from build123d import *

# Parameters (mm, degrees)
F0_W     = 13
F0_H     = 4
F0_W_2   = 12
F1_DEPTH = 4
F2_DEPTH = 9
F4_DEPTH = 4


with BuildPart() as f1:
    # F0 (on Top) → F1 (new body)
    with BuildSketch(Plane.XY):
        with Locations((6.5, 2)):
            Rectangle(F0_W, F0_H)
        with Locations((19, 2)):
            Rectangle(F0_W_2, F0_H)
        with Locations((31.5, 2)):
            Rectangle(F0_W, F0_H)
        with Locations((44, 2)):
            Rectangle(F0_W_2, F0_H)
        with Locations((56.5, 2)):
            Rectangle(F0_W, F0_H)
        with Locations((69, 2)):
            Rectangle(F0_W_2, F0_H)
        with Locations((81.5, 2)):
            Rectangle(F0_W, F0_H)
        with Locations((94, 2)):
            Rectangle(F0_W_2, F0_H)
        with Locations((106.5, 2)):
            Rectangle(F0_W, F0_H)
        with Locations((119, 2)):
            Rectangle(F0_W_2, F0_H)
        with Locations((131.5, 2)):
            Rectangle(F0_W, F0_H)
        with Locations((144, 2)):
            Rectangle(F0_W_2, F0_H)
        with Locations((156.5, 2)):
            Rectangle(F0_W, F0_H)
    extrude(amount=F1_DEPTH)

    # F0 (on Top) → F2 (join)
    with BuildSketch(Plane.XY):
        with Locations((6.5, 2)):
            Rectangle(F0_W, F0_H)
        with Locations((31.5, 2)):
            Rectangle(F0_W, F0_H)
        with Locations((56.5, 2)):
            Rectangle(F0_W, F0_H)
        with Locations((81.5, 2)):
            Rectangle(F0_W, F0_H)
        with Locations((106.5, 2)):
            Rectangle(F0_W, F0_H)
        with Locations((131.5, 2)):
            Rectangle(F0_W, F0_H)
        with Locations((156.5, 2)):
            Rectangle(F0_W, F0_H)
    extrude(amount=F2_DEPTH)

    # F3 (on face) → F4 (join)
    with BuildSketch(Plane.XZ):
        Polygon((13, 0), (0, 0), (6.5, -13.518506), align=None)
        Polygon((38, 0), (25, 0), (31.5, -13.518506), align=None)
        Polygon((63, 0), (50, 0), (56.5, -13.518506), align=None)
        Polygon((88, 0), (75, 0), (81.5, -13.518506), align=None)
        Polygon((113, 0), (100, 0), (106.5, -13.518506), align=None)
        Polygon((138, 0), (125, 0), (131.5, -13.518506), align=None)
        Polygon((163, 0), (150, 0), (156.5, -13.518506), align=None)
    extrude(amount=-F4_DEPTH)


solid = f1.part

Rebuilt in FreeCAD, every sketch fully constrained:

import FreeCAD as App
import Part
import Sketcher

V = App.Vector
Q = App.Units.Quantity

doc = App.newDocument("Part")
body = doc.addObject("PartDesign::Body", "Body")

# Sketch on XY plane
sketch1 = body.newObject("Sketcher::SketchObject", "Sketch")
sketch1.AttachmentSupport = (doc.getObject("XY_Plane"), [""])
sketch1.MapMode = "FlatFace"
sketch1.addGeometry([
    Part.LineSegment(V(0, 4, 0), V(0, 0, 0)),
    Part.LineSegment(V(0, 0, 0), V(163, 0, 0)),
    Part.LineSegment(V(163, 0, 0), V(163, 4, 0)),
    Part.LineSegment(V(163, 4, 0), V(0, 4, 0)),
], False)
sketch1.addConstraint([
    Sketcher.Constraint("Coincident", 0, 2, 1, 1),
    Sketcher.Constraint("Coincident", 1, 2, 2, 1),
    Sketcher.Constraint("Coincident", 2, 2, 3, 1),
    Sketcher.Constraint("Coincident", 3, 2, 0, 1),
    Sketcher.Constraint("Vertical", 0),
    Sketcher.Constraint("Horizontal", 1),
    Sketcher.Constraint("Vertical", 2),
    Sketcher.Constraint("Horizontal", 3),
    Sketcher.Constraint("Coincident", 0, 2, -1, 1),
    Sketcher.Constraint("DistanceX", 1, 1, 1, 2, Q("163 mm")),
    Sketcher.Constraint("DistanceY", 0, 2, 0, 1, Q("4 mm")),
])
pad1 = body.newObject("PartDesign::Pad", "Pad")
pad1.Profile = sketch1
pad1.Length = 4

# Sketch on XY plane
sketch2 = body.newObject("Sketcher::SketchObject", "Sketch001")
sketch2.AttachmentSupport = (doc.getObject("XY_Plane"), [""])
sketch2.MapMode = "FlatFace"
sketch2.addGeometry([
    Part.LineSegment(V(0, 4, 0), V(0, 0, 0)),  # 0
    Part.LineSegment(V(0, 0, 0), V(13, 0, 0)),  # 1
    Part.LineSegment(V(13, 0, 0), V(13, 4, 0)),  # 2
    Part.LineSegment(V(13, 4, 0), V(0, 4, 0)),  # 3
    Part.LineSegment(V(25, 4, 0), V(25, 0, 0)),  # 4
    Part.LineSegment(V(25, 0, 0), V(38, 0, 0)),  # 5
    Part.LineSegment(V(38, 0, 0), V(38, 4, 0)),  # 6
    Part.LineSegment(V(38, 4, 0), V(25, 4, 0)),  # 7
    Part.LineSegment(V(50, 4, 0), V(50, 0, 0)),  # 8
    Part.LineSegment(V(50, 0, 0), V(63, 0, 0)),  # 9
    Part.LineSegment(V(63, 0, 0), V(63, 4, 0)),  # 10
    Part.LineSegment(V(63, 4, 0), V(50, 4, 0)),  # 11
    Part.LineSegment(V(75, 4, 0), V(75, 0, 0)),  # 12
    Part.LineSegment(V(75, 0, 0), V(88, 0, 0)),  # 13
    Part.LineSegment(V(88, 0, 0), V(88, 4, 0)),  # 14
    Part.LineSegment(V(88, 4, 0), V(75, 4, 0)),  # 15
    Part.LineSegment(V(100, 4, 0), V(100, 0, 0)),  # 16
    Part.LineSegment(V(100, 0, 0), V(113, 0, 0)),  # 17
    Part.LineSegment(V(113, 0, 0), V(113, 4, 0)),  # 18
    Part.LineSegment(V(113, 4, 0), V(100, 4, 0)),  # 19
    Part.LineSegment(V(125, 4, 0), V(125, 0, 0)),  # 20
    Part.LineSegment(V(125, 0, 0), V(138, 0, 0)),  # 21
    Part.LineSegment(V(138, 0, 0), V(138, 4, 0)),  # 22
    Part.LineSegment(V(138, 4, 0), V(125, 4, 0)),  # 23
    Part.LineSegment(V(150, 4, 0), V(150, 0, 0)),  # 24
    Part.LineSegment(V(150, 0, 0), V(163, 0, 0)),  # 25
    Part.LineSegment(V(163, 0, 0), V(163, 4, 0)),  # 26
    Part.LineSegment(V(163, 4, 0), V(150, 4, 0)),  # 27
], False)
sketch2.addConstraint([
    Sketcher.Constraint("Coincident", 0, 2, 1, 1),
    Sketcher.Constraint("Coincident", 1, 2, 2, 1),
    Sketcher.Constraint("Coincident", 2, 2, 3, 1),
    Sketcher.Constraint("Coincident", 3, 2, 0, 1),
    Sketcher.Constraint("Coincident", 4, 2, 5, 1),
    Sketcher.Constraint("Coincident", 5, 2, 6, 1),
    Sketcher.Constraint("Coincident", 6, 2, 7, 1),
    Sketcher.Constraint("Coincident", 7, 2, 4, 1),
    Sketcher.Constraint("Coincident", 8, 2, 9, 1),
    Sketcher.Constraint("Coincident", 9, 2, 10, 1),
    Sketcher.Constraint("Coincident", 10, 2, 11, 1),
    Sketcher.Constraint("Coincident", 11, 2, 8, 1),
    Sketcher.Constraint("Coincident", 12, 2, 13, 1),
    Sketcher.Constraint("Coincident", 13, 2, 14, 1),
    Sketcher.Constraint("Coincident", 14, 2, 15, 1),
    Sketcher.Constraint("Coincident", 15, 2, 12, 1),
    Sketcher.Constraint("Coincident", 16, 2, 17, 1),
    Sketcher.Constraint("Coincident", 17, 2, 18, 1),
    Sketcher.Constraint("Coincident", 18, 2, 19, 1),
    Sketcher.Constraint("Coincident", 19, 2, 16, 1),
    Sketcher.Constraint("Coincident", 20, 2, 21, 1),
    Sketcher.Constraint("Coincident", 21, 2, 22, 1),
    Sketcher.Constraint("Coincident", 22, 2, 23, 1),
    Sketcher.Constraint("Coincident", 23, 2, 20, 1),
    Sketcher.Constraint("Coincident", 24, 2, 25, 1),
    Sketcher.Constraint("Coincident", 25, 2, 26, 1),
    Sketcher.Constraint("Coincident", 26, 2, 27, 1),
    Sketcher.Constraint("Coincident", 27, 2, 24, 1),
    Sketcher.Constraint("Vertical", 0),
    Sketcher.Constraint("Horizontal", 1),
    Sketcher.Constraint("Vertical", 2),
    Sketcher.Constraint("Horizontal", 3),
    Sketcher.Constraint("Vertical", 4),
    Sketcher.Constraint("Horizontal", 5),
    Sketcher.Constraint("Vertical", 6),
    Sketcher.Constraint("Horizontal", 7),
    Sketcher.Constraint("Vertical", 8),
    Sketcher.Constraint("Horizontal", 9),
    Sketcher.Constraint("Vertical", 10),
    Sketcher.Constraint("Horizontal", 11),
    Sketcher.Constraint("Vertical", 12),
    Sketcher.Constraint("Horizontal", 13),
    Sketcher.Constraint("Vertical", 14),
    Sketcher.Constraint("Horizontal", 15),
    Sketcher.Constraint("Vertical", 16),
    Sketcher.Constraint("Horizontal", 17),
    Sketcher.Constraint("Vertical", 18),
    Sketcher.Constraint("Horizontal", 19),
    Sketcher.Constraint("Vertical", 20),
    Sketcher.Constraint("Horizontal", 21),
    Sketcher.Constraint("Vertical", 22),
    Sketcher.Constraint("Horizontal", 23),
    Sketcher.Constraint("Vertical", 24),
    Sketcher.Constraint("Horizontal", 25),
    Sketcher.Constraint("Vertical", 26),
    Sketcher.Constraint("Horizontal", 27),
    Sketcher.Constraint("Coincident", 0, 2, -1, 1),
    Sketcher.Constraint("PointOnObject", 4, 2, -1),
    Sketcher.Constraint("PointOnObject", 8, 2, -1),
    Sketcher.Constraint("PointOnObject", 12, 2, -1),
    Sketcher.Constraint("PointOnObject", 16, 2, -1),
    Sketcher.Constraint("PointOnObject", 20, 2, -1),
    Sketcher.Constraint("PointOnObject", 24, 2, -1),
    Sketcher.Constraint("Horizontal", 3, 2, 6, 2),
    Sketcher.Constraint("Horizontal", 7, 2, 10, 2),
    Sketcher.Constraint("Horizontal", 11, 2, 14, 2),
    Sketcher.Constraint("Horizontal", 15, 2, 18, 2),
    Sketcher.Constraint("Horizontal", 19, 2, 22, 2),
    Sketcher.Constraint("Horizontal", 23, 2, 26, 2),
    Sketcher.Constraint("Equal", 3, 5),
    Sketcher.Constraint("Equal", 7, 9),
    Sketcher.Constraint("Equal", 11, 13),
    Sketcher.Constraint("Equal", 15, 17),
    Sketcher.Constraint("Equal", 19, 21),
    Sketcher.Constraint("Equal", 23, 25),
    Sketcher.Constraint("DistanceX", 1, 1, 1, 2, Q("13 mm")),
    Sketcher.Constraint("DistanceY", 0, 2, 0, 1, Q("4 mm")),
    Sketcher.Constraint("DistanceX", -1, 1, 4, 2, Q("25 mm")),
    Sketcher.Constraint("DistanceX", -1, 1, 8, 2, Q("50 mm")),
    Sketcher.Constraint("DistanceX", -1, 1, 12, 2, Q("75 mm")),
    Sketcher.Constraint("DistanceX", -1, 1, 16, 2, Q("100 mm")),
    Sketcher.Constraint("DistanceX", -1, 1, 20, 2, Q("125 mm")),
    Sketcher.Constraint("DistanceX", -1, 1, 24, 2, Q("150 mm")),
])
pad2 = body.newObject("PartDesign::Pad", "Pad001")
pad2.Profile = sketch2
pad2.Length = 9

# Sketch on XZ plane
sketch3 = body.newObject("Sketcher::SketchObject", "Sketch002")
sketch3.AttachmentSupport = (doc.getObject("XZ_Plane"), [""])
sketch3.MapMode = "FlatFace"
sketch3.addGeometry([
    Part.LineSegment(V(13, 0, 0), V(0, 0, 0)),  # 0
    Part.LineSegment(V(0, 0, 0), V(6, -14, 0)),  # 1
    Part.LineSegment(V(6, -14, 0), V(13, 0, 0)),  # 2
    Part.LineSegment(V(38, 0, 0), V(25, 0, 0)),  # 3
    Part.LineSegment(V(25, 0, 0), V(32, -14, 0)),  # 4
    Part.LineSegment(V(32, -14, 0), V(38, 0, 0)),  # 5
    Part.LineSegment(V(63, 0, 0), V(50, 0, 0)),  # 6
    Part.LineSegment(V(50, 0, 0), V(56, -14, 0)),  # 7
    Part.LineSegment(V(56, -14, 0), V(63, 0, 0)),  # 8
    Part.LineSegment(V(88, 0, 0), V(75, 0, 0)),  # 9
    Part.LineSegment(V(75, 0, 0), V(82, -14, 0)),  # 10
    Part.LineSegment(V(82, -14, 0), V(88, 0, 0)),  # 11
    Part.LineSegment(V(113, 0, 0), V(100, 0, 0)),  # 12
    Part.LineSegment(V(100, 0, 0), V(106, -14, 0)),  # 13
    Part.LineSegment(V(106, -14, 0), V(113, 0, 0)),  # 14
    Part.LineSegment(V(138, 0, 0), V(125, 0, 0)),  # 15
    Part.LineSegment(V(125, 0, 0), V(132, -14, 0)),  # 16
    Part.LineSegment(V(132, -14, 0), V(138, 0, 0)),  # 17
    Part.LineSegment(V(163, 0, 0), V(150, 0, 0)),  # 18
    Part.LineSegment(V(150, 0, 0), V(156, -14, 0)),  # 19
    Part.LineSegment(V(156, -14, 0), V(163, 0, 0)),  # 20
], False)
sketch3.addConstraint([
    Sketcher.Constraint("Coincident", 0, 2, 1, 1),
    Sketcher.Constraint("Coincident", 1, 2, 2, 1),
    Sketcher.Constraint("Coincident", 2, 2, 0, 1),
    Sketcher.Constraint("Coincident", 3, 2, 4, 1),
    Sketcher.Constraint("Coincident", 4, 2, 5, 1),
    Sketcher.Constraint("Coincident", 5, 2, 3, 1),
    Sketcher.Constraint("Coincident", 6, 2, 7, 1),
    Sketcher.Constraint("Coincident", 7, 2, 8, 1),
    Sketcher.Constraint("Coincident", 8, 2, 6, 1),
    Sketcher.Constraint("Coincident", 9, 2, 10, 1),
    Sketcher.Constraint("Coincident", 10, 2, 11, 1),
    Sketcher.Constraint("Coincident", 11, 2, 9, 1),
    Sketcher.Constraint("Coincident", 12, 2, 13, 1),
    Sketcher.Constraint("Coincident", 13, 2, 14, 1),
    Sketcher.Constraint("Coincident", 14, 2, 12, 1),
    Sketcher.Constraint("Coincident", 15, 2, 16, 1),
    Sketcher.Constraint("Coincident", 16, 2, 17, 1),
    Sketcher.Constraint("Coincident", 17, 2, 15, 1),
    Sketcher.Constraint("Coincident", 18, 2, 19, 1),
    Sketcher.Constraint("Coincident", 19, 2, 20, 1),
    Sketcher.Constraint("Coincident", 20, 2, 18, 1),
    Sketcher.Constraint("Horizontal", 0),
    Sketcher.Constraint("Horizontal", 3),
    Sketcher.Constraint("Horizontal", 6),
    Sketcher.Constraint("Horizontal", 9),
    Sketcher.Constraint("Horizontal", 12),
    Sketcher.Constraint("Horizontal", 15),
    Sketcher.Constraint("Horizontal", 18),
    Sketcher.Constraint("Coincident", 0, 2, -1, 1),
    Sketcher.Constraint("PointOnObject", 3, 2, -1),
    Sketcher.Constraint("PointOnObject", 6, 2, -1),
    Sketcher.Constraint("PointOnObject", 9, 2, -1),
    Sketcher.Constraint("PointOnObject", 12, 2, -1),
    Sketcher.Constraint("PointOnObject", 15, 2, -1),
    Sketcher.Constraint("PointOnObject", 18, 2, -1),
    Sketcher.Constraint("Parallel", 1, 4),
    Sketcher.Constraint("Parallel", 2, 5),
    Sketcher.Constraint("Parallel", 4, 7),
    Sketcher.Constraint("Parallel", 5, 8),
    Sketcher.Constraint("Parallel", 7, 10),
    Sketcher.Constraint("Parallel", 8, 11),
    Sketcher.Constraint("Parallel", 10, 13),
    Sketcher.Constraint("Parallel", 11, 14),
    Sketcher.Constraint("Parallel", 13, 16),
    Sketcher.Constraint("Parallel", 14, 17),
    Sketcher.Constraint("Parallel", 16, 19),
    Sketcher.Constraint("Parallel", 17, 20),
    Sketcher.Constraint("Horizontal", 1, 2, 4, 2),
    Sketcher.Constraint("Horizontal", 4, 2, 7, 2),
    Sketcher.Constraint("Horizontal", 7, 2, 10, 2),
    Sketcher.Constraint("Horizontal", 10, 2, 13, 2),
    Sketcher.Constraint("Horizontal", 13, 2, 16, 2),
    Sketcher.Constraint("Horizontal", 16, 2, 19, 2),
    Sketcher.Constraint("Equal", 1, 2),
    Sketcher.Constraint("DistanceX", 0, 2, 0, 1, Q("13 mm")),
    Sketcher.Constraint("Distance", 1, Q("15 mm")),
    Sketcher.Constraint("DistanceX", -1, 1, 3, 2, Q("25 mm")),
    Sketcher.Constraint("DistanceX", -1, 1, 6, 2, Q("50 mm")),
    Sketcher.Constraint("DistanceX", -1, 1, 9, 2, Q("75 mm")),
    Sketcher.Constraint("DistanceX", -1, 1, 12, 2, Q("100 mm")),
    Sketcher.Constraint("DistanceX", -1, 1, 15, 2, Q("125 mm")),
    Sketcher.Constraint("DistanceX", -1, 1, 18, 2, Q("150 mm")),
])
pad3 = body.newObject("PartDesign::Pad", "Pad002")
pad3.Profile = sketch3
pad3.Length = 4
pad3.Reversed = True

doc.recompute()
